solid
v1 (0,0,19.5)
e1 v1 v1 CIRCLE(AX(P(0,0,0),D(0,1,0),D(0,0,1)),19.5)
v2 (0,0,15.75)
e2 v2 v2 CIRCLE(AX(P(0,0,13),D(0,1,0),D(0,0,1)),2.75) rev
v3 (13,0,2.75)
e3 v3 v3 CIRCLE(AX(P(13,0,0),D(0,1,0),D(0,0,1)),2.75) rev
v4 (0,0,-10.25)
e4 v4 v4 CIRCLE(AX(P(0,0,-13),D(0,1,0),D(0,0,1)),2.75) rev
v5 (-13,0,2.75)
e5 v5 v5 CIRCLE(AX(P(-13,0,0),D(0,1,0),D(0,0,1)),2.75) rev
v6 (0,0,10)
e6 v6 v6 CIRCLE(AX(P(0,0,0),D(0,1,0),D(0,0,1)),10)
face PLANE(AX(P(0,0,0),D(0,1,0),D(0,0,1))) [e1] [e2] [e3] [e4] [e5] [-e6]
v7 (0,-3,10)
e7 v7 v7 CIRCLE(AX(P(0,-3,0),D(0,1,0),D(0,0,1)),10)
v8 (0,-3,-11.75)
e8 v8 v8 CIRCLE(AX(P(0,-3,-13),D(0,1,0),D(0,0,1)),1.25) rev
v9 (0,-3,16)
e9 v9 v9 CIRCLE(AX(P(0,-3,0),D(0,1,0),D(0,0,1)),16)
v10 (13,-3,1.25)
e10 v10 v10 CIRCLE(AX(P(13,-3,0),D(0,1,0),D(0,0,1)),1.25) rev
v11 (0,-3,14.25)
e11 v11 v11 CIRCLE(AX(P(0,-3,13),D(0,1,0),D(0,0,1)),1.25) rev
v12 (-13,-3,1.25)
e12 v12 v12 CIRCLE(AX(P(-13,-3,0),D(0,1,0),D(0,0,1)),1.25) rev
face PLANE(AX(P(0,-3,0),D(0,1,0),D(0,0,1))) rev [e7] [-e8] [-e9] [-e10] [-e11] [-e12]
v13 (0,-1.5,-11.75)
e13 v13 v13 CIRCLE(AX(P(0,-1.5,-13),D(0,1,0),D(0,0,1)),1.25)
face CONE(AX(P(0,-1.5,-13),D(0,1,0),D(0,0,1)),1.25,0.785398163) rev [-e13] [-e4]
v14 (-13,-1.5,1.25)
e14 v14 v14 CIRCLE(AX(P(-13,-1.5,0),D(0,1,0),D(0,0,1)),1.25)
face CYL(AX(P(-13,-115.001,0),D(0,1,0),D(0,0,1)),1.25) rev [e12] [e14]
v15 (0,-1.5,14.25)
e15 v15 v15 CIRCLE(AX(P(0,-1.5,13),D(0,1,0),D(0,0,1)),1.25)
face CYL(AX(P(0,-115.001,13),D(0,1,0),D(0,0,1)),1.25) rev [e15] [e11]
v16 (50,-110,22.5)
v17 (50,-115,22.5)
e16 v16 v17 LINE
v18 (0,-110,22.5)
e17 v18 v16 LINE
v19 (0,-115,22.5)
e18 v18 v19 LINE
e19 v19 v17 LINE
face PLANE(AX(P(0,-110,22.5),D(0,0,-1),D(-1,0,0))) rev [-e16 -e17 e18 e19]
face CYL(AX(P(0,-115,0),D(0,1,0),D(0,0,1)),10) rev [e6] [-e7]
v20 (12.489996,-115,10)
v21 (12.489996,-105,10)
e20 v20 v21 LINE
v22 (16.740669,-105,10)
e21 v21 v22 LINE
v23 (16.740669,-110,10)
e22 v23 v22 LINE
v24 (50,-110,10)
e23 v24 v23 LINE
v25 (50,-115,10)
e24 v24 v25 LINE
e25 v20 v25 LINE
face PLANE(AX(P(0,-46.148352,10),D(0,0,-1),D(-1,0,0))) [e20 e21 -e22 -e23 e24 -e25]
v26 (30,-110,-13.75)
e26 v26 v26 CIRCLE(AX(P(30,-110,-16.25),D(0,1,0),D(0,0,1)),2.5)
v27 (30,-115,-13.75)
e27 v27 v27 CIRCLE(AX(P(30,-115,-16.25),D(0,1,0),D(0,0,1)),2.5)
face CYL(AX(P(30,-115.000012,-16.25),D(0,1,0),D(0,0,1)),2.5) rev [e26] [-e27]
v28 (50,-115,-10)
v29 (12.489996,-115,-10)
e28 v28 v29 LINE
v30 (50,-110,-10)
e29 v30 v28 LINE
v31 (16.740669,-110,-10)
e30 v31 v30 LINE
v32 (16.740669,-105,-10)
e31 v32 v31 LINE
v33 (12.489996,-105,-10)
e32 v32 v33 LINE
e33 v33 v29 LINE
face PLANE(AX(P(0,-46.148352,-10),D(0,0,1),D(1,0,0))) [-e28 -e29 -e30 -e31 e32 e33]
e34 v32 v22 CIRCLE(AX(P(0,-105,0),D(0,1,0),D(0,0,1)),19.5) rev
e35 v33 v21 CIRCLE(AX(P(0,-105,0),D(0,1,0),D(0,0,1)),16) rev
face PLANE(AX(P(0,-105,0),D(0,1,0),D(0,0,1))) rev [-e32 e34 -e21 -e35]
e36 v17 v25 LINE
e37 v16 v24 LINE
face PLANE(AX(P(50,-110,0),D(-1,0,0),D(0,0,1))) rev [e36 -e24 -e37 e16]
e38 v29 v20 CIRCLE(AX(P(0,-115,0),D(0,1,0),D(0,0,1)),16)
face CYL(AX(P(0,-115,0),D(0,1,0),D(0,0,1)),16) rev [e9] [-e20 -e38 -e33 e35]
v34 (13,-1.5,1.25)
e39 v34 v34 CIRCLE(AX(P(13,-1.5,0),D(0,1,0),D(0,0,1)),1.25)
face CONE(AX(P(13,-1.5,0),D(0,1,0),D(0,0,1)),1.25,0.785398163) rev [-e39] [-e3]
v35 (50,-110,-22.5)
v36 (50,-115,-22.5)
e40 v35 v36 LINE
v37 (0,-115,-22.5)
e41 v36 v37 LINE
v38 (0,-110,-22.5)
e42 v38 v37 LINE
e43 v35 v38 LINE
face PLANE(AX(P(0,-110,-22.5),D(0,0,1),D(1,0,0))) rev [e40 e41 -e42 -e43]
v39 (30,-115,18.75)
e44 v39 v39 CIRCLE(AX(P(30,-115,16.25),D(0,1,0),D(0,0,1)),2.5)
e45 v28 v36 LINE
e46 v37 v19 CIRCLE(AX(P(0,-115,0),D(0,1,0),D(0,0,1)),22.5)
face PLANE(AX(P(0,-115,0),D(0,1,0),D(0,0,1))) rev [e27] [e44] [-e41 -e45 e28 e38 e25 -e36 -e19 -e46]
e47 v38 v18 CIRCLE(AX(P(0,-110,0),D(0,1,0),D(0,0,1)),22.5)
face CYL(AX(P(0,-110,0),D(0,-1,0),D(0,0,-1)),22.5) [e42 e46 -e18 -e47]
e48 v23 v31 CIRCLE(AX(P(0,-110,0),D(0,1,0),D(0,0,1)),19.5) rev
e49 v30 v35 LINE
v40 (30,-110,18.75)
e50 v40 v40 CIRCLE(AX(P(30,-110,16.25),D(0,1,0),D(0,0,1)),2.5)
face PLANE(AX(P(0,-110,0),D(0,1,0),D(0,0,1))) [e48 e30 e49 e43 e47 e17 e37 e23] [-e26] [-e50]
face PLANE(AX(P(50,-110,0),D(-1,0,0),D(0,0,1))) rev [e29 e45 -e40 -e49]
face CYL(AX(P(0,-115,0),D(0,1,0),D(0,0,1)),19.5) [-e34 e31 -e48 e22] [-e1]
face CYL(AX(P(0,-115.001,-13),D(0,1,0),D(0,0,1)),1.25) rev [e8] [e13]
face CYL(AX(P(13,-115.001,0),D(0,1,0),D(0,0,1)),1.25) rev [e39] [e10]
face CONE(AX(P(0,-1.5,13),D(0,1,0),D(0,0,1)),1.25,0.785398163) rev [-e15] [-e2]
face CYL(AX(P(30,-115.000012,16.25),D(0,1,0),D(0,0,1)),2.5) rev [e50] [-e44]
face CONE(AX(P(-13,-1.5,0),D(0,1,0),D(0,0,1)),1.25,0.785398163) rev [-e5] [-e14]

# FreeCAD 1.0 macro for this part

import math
import FreeCAD as App
import Part
import Sketcher

V = App.Vector
Q = App.Units.Quantity


def edges_at(feature, points):
    """Names of the edges that pass closest to the given points."""
    edges = feature.Shape.Edges
    near = lambda p: min(range(len(edges)), key=lambda i: edges[i].distToShape(Part.Vertex(*p))[0])
    return sorted({f"Edge{near(p) + 1}" for p in points})


def add_polygon(sketch, points):
    """Adds a closed chain of lines whose ends are joined by coincident constraints."""
    first, n = sketch.GeometryCount, len(points)
    for a, b in zip(points, points[1:] + points[:1]):
        sketch.addGeometry(Part.LineSegment(App.Vector(*a, 0), App.Vector(*b, 0)), False)
    for i in range(n):
        sketch.addConstraint(Sketcher.Constraint("Coincident", first + i, 2, first + (i + 1) % n, 1))

doc = App.newDocument("Part")
body = doc.addObject("PartDesign::Body", "Body")

sketch1 = doc.addObject("Sketcher::SketchObject", "Sketch")
body.addObject(sketch1)
sketch1.AttachmentSupport = (doc.XZ_Plane, [""])
sketch1.MapMode = "FlatFace"
sketch1.addGeometry(Part.Circle(V(0, 0, 0), V(0, 0, 1), 19.5), False)
sketch1.addConstraint([
    Sketcher.Constraint("Coincident", 0, 3, -1, 1),
    Sketcher.Constraint("Diameter", 0, Q("39 mm")),
])
pad1 = doc.addObject("PartDesign::Pad", "Pad")
body.addObject(pad1)
pad1.Profile = sketch1
pad1.Length = 115

sketch2 = doc.addObject("Sketcher::SketchObject", "Sketch001")
body.addObject(sketch2)
sketch2.AttachmentSupport = (doc.XZ_Plane, [""])
sketch2.MapMode = "FlatFace"
sketch2.AttachmentOffset = App.Placement(V(0, 0, 115), App.Rotation())
sketch2.addGeometry([
    Part.LineSegment(V(50, -22.5, 0), V(0, -22.5, 0)),
    Part.ArcOfCircle(Part.Circle(V(0, 0, 0), V(0, 0, 1), 22.5), math.radians(90), math.radians(270)),
    Part.LineSegment(V(0, 22.5, 0), V(50, 22.5, 0)),
    Part.LineSegment(V(50, 22.5, 0), V(50, -22.5, 0)),
], False)
sketch2.addConstraint([
    Sketcher.Constraint("Tangent", 0, 2, 1, 2),
    Sketcher.Constraint("Tangent", 1, 1, 2, 1),
    Sketcher.Constraint("Coincident", 2, 2, 3, 1),
    Sketcher.Constraint("Coincident", 3, 2, 0, 1),
    Sketcher.Constraint("Horizontal", 0),
    Sketcher.Constraint("Horizontal", 2),
    Sketcher.Constraint("Vertical", 3),
    Sketcher.Constraint("Coincident", 1, 3, -1, 1),
    Sketcher.Constraint("Radius", 1, Q("22.5 mm")),
    Sketcher.Constraint("DistanceX", 0, 2, 0, 1, Q("50 mm")),
])
pad2 = doc.addObject("PartDesign::Pad", "Pad001")
body.addObject(pad2)
pad2.Profile = sketch2
pad2.Length = 5
pad2.Reversed = True

sketch3 = doc.addObject("Sketcher::SketchObject", "Sketch002")
body.addObject(sketch3)
sketch3.AttachmentSupport = (doc.XZ_Plane, [""])
sketch3.MapMode = "FlatFace"
sketch3.AttachmentOffset = App.Placement(V(0, 0, 3), App.Rotation())
sketch3.addGeometry(Part.Circle(V(0, 0, 0), V(0, 0, 1), 16), False)
sketch3.addConstraint([
    Sketcher.Constraint("Coincident", 0, 3, -1, 1),
    Sketcher.Constraint("Diameter", 0, Q("32 mm")),
])
pocket1 = doc.addObject("PartDesign::Pocket", "Pocket")
body.addObject(pocket1)
pocket1.Profile = sketch3
pocket1.Type = "ThroughAll"
pocket1.Reversed = True

sketch4 = doc.addObject("Sketcher::SketchObject", "Sketch003")
body.addObject(sketch4)
sketch4.AttachmentSupport = (doc.XZ_Plane, [""])
sketch4.MapMode = "FlatFace"
sketch4.addGeometry(Part.Circle(V(0, 0, 0), V(0, 0, 1), 10), False)
sketch4.addConstraint([
    Sketcher.Constraint("Coincident", 0, 3, -1, 1),
    Sketcher.Constraint("Diameter", 0, Q("20 mm")),
])
pocket2 = doc.addObject("PartDesign::Pocket", "Pocket001")
body.addObject(pocket2)
pocket2.Profile = sketch4
pocket2.Type = "ThroughAll"
pocket2.Reversed = True

sketch5 = doc.addObject("Sketcher::SketchObject", "Sketch004")
body.addObject(sketch5)
sketch5.AttachmentSupport = (doc.XZ_Plane, [""])
sketch5.MapMode = "FlatFace"
sketch5.addGeometry(Part.Circle(V(0, -13, 0), V(0, 0, 1), 1.25), False)
sketch5.addConstraint([
    Sketcher.Constraint("PointOnObject", 0, 3, -2),
    Sketcher.Constraint("Diameter", 0, Q("2.5 mm")),
    Sketcher.Constraint("DistanceY", 0, 3, -1, 1, Q("13 mm")),
])
pocket3 = doc.addObject("PartDesign::Pocket", "Pocket002")
body.addObject(pocket3)
pocket3.Profile = sketch5
pocket3.Type = "UpToFirst"
pocket3.Reversed = True

sketch6 = doc.addObject("Sketcher::SketchObject", "Sketch005")
body.addObject(sketch6)
sketch6.AttachmentSupport = (doc.XZ_Plane, [""])
sketch6.MapMode = "FlatFace"
sketch6.addGeometry(Part.Circle(V(13, 0, 0), V(0, 0, 1), 1.25), False)
sketch6.addConstraint([
    Sketcher.Constraint("PointOnObject", 0, 3, -1),
    Sketcher.Constraint("Diameter", 0, Q("2.5 mm")),
    Sketcher.Constraint("DistanceX", -1, 1, 0, 3, Q("13 mm")),
])
pocket4 = doc.addObject("PartDesign::Pocket", "Pocket003")
body.addObject(pocket4)
pocket4.Profile = sketch6
pocket4.Type = "UpToFirst"
pocket4.Reversed = True

sketch7 = doc.addObject("Sketcher::SketchObject", "Sketch006")
body.addObject(sketch7)
sketch7.AttachmentSupport = (doc.XZ_Plane, [""])
sketch7.MapMode = "FlatFace"
sketch7.addGeometry(Part.Circle(V(0, 13, 0), V(0, 0, 1), 1.25), False)
sketch7.addConstraint([
    Sketcher.Constraint("PointOnObject", 0, 3, -2),
    Sketcher.Constraint("Diameter", 0, Q("2.5 mm")),
    Sketcher.Constraint("DistanceY", -1, 1, 0, 3, Q("13 mm")),
])
pocket5 = doc.addObject("PartDesign::Pocket", "Pocket004")
body.addObject(pocket5)
pocket5.Profile = sketch7
pocket5.Type = "UpToFirst"
pocket5.Reversed = True

sketch8 = doc.addObject("Sketcher::SketchObject", "Sketch007")
body.addObject(sketch8)
sketch8.AttachmentSupport = (doc.XZ_Plane, [""])
sketch8.MapMode = "FlatFace"
sketch8.addGeometry(Part.Circle(V(-13, 0, 0), V(0, 0, 1), 1.25), False)
sketch8.addConstraint([
    Sketcher.Constraint("PointOnObject", 0, 3, -1),
    Sketcher.Constraint("Diameter", 0, Q("2.5 mm")),
    Sketcher.Constraint("DistanceX", 0, 3, -1, 1, Q("13 mm")),
])
pocket6 = doc.addObject("PartDesign::Pocket", "Pocket005")
body.addObject(pocket6)
pocket6.Profile = sketch8
pocket6.Type = "UpToFirst"
pocket6.Reversed = True
doc.recompute()

chamfer = doc.addObject("PartDesign::Chamfer", "Chamfer")
body.addObject(chamfer)
chamfer.Base = (pocket6, edges_at(pocket6, [
    (-1.25, 0, -13),
    (11.75, 0, 0),
    (-1.25, 0, 13),
    (-14.25, 0, 0),
]))
chamfer.Size = 1.5

sketch9 = doc.addObject("Sketcher::SketchObject", "Sketch008")
body.addObject(sketch9)
sketch9.AttachmentSupport = (doc.XZ_Plane, [""])
sketch9.MapMode = "FlatFace"
sketch9.AttachmentOffset = App.Placement(V(0, 0, 115), App.Rotation())
add_polygon(sketch9, [(0, -10), (0, 10), (50, 10), (50, -10)])
sketch9.addConstraint([
    Sketcher.Constraint("Vertical", 0),
    Sketcher.Constraint("Horizontal", 1),
    Sketcher.Constraint("Vertical", 2),
    Sketcher.Constraint("Horizontal", 3),
    Sketcher.Constraint("Symmetric", 0, 2, 3, 2, -1, 1),
    Sketcher.Constraint("DistanceX", 1, 1, 1, 2, Q("50 mm")),
    Sketcher.Constraint("DistanceY", 0, 1, 0, 2, Q("20 mm")),
])
pocket7 = doc.addObject("PartDesign::Pocket", "Pocket006")
body.addObject(pocket7)
pocket7.Profile = sketch9
pocket7.Length = 10

sketch10 = doc.addObject("Sketcher::SketchObject", "Sketch009")
body.addObject(sketch10)
sketch10.AttachmentSupport = (doc.XZ_Plane, [""])
sketch10.MapMode = "FlatFace"
sketch10.AttachmentOffset = App.Placement(V(0, 0, 115), App.Rotation())
sketch10.addGeometry([
    Part.Circle(V(30, -16.25, 0), V(0, 0, 1), 2.5),
    Part.Circle(V(30, 16.25, 0), V(0, 0, 1), 2.5),
], False)
sketch10.addConstraint([
    Sketcher.Constraint("Equal", 0, 1),
    Sketcher.Constraint("Symmetric", 0, 3, 1, 3, -1),
    Sketcher.Constraint("Diameter", 0, Q("5 mm")),
    Sketcher.Constraint("DistanceX", -1, 1, 0, 3, Q("30 mm")),
    Sketcher.Constraint("DistanceY", 0, 3, 1, 3, Q("32.5 mm")),
])
pocket8 = doc.addObject("PartDesign::Pocket", "Pocket007")
body.addObject(pocket8)
pocket8.Profile = sketch10
pocket8.Length = 5

doc.recompute()
